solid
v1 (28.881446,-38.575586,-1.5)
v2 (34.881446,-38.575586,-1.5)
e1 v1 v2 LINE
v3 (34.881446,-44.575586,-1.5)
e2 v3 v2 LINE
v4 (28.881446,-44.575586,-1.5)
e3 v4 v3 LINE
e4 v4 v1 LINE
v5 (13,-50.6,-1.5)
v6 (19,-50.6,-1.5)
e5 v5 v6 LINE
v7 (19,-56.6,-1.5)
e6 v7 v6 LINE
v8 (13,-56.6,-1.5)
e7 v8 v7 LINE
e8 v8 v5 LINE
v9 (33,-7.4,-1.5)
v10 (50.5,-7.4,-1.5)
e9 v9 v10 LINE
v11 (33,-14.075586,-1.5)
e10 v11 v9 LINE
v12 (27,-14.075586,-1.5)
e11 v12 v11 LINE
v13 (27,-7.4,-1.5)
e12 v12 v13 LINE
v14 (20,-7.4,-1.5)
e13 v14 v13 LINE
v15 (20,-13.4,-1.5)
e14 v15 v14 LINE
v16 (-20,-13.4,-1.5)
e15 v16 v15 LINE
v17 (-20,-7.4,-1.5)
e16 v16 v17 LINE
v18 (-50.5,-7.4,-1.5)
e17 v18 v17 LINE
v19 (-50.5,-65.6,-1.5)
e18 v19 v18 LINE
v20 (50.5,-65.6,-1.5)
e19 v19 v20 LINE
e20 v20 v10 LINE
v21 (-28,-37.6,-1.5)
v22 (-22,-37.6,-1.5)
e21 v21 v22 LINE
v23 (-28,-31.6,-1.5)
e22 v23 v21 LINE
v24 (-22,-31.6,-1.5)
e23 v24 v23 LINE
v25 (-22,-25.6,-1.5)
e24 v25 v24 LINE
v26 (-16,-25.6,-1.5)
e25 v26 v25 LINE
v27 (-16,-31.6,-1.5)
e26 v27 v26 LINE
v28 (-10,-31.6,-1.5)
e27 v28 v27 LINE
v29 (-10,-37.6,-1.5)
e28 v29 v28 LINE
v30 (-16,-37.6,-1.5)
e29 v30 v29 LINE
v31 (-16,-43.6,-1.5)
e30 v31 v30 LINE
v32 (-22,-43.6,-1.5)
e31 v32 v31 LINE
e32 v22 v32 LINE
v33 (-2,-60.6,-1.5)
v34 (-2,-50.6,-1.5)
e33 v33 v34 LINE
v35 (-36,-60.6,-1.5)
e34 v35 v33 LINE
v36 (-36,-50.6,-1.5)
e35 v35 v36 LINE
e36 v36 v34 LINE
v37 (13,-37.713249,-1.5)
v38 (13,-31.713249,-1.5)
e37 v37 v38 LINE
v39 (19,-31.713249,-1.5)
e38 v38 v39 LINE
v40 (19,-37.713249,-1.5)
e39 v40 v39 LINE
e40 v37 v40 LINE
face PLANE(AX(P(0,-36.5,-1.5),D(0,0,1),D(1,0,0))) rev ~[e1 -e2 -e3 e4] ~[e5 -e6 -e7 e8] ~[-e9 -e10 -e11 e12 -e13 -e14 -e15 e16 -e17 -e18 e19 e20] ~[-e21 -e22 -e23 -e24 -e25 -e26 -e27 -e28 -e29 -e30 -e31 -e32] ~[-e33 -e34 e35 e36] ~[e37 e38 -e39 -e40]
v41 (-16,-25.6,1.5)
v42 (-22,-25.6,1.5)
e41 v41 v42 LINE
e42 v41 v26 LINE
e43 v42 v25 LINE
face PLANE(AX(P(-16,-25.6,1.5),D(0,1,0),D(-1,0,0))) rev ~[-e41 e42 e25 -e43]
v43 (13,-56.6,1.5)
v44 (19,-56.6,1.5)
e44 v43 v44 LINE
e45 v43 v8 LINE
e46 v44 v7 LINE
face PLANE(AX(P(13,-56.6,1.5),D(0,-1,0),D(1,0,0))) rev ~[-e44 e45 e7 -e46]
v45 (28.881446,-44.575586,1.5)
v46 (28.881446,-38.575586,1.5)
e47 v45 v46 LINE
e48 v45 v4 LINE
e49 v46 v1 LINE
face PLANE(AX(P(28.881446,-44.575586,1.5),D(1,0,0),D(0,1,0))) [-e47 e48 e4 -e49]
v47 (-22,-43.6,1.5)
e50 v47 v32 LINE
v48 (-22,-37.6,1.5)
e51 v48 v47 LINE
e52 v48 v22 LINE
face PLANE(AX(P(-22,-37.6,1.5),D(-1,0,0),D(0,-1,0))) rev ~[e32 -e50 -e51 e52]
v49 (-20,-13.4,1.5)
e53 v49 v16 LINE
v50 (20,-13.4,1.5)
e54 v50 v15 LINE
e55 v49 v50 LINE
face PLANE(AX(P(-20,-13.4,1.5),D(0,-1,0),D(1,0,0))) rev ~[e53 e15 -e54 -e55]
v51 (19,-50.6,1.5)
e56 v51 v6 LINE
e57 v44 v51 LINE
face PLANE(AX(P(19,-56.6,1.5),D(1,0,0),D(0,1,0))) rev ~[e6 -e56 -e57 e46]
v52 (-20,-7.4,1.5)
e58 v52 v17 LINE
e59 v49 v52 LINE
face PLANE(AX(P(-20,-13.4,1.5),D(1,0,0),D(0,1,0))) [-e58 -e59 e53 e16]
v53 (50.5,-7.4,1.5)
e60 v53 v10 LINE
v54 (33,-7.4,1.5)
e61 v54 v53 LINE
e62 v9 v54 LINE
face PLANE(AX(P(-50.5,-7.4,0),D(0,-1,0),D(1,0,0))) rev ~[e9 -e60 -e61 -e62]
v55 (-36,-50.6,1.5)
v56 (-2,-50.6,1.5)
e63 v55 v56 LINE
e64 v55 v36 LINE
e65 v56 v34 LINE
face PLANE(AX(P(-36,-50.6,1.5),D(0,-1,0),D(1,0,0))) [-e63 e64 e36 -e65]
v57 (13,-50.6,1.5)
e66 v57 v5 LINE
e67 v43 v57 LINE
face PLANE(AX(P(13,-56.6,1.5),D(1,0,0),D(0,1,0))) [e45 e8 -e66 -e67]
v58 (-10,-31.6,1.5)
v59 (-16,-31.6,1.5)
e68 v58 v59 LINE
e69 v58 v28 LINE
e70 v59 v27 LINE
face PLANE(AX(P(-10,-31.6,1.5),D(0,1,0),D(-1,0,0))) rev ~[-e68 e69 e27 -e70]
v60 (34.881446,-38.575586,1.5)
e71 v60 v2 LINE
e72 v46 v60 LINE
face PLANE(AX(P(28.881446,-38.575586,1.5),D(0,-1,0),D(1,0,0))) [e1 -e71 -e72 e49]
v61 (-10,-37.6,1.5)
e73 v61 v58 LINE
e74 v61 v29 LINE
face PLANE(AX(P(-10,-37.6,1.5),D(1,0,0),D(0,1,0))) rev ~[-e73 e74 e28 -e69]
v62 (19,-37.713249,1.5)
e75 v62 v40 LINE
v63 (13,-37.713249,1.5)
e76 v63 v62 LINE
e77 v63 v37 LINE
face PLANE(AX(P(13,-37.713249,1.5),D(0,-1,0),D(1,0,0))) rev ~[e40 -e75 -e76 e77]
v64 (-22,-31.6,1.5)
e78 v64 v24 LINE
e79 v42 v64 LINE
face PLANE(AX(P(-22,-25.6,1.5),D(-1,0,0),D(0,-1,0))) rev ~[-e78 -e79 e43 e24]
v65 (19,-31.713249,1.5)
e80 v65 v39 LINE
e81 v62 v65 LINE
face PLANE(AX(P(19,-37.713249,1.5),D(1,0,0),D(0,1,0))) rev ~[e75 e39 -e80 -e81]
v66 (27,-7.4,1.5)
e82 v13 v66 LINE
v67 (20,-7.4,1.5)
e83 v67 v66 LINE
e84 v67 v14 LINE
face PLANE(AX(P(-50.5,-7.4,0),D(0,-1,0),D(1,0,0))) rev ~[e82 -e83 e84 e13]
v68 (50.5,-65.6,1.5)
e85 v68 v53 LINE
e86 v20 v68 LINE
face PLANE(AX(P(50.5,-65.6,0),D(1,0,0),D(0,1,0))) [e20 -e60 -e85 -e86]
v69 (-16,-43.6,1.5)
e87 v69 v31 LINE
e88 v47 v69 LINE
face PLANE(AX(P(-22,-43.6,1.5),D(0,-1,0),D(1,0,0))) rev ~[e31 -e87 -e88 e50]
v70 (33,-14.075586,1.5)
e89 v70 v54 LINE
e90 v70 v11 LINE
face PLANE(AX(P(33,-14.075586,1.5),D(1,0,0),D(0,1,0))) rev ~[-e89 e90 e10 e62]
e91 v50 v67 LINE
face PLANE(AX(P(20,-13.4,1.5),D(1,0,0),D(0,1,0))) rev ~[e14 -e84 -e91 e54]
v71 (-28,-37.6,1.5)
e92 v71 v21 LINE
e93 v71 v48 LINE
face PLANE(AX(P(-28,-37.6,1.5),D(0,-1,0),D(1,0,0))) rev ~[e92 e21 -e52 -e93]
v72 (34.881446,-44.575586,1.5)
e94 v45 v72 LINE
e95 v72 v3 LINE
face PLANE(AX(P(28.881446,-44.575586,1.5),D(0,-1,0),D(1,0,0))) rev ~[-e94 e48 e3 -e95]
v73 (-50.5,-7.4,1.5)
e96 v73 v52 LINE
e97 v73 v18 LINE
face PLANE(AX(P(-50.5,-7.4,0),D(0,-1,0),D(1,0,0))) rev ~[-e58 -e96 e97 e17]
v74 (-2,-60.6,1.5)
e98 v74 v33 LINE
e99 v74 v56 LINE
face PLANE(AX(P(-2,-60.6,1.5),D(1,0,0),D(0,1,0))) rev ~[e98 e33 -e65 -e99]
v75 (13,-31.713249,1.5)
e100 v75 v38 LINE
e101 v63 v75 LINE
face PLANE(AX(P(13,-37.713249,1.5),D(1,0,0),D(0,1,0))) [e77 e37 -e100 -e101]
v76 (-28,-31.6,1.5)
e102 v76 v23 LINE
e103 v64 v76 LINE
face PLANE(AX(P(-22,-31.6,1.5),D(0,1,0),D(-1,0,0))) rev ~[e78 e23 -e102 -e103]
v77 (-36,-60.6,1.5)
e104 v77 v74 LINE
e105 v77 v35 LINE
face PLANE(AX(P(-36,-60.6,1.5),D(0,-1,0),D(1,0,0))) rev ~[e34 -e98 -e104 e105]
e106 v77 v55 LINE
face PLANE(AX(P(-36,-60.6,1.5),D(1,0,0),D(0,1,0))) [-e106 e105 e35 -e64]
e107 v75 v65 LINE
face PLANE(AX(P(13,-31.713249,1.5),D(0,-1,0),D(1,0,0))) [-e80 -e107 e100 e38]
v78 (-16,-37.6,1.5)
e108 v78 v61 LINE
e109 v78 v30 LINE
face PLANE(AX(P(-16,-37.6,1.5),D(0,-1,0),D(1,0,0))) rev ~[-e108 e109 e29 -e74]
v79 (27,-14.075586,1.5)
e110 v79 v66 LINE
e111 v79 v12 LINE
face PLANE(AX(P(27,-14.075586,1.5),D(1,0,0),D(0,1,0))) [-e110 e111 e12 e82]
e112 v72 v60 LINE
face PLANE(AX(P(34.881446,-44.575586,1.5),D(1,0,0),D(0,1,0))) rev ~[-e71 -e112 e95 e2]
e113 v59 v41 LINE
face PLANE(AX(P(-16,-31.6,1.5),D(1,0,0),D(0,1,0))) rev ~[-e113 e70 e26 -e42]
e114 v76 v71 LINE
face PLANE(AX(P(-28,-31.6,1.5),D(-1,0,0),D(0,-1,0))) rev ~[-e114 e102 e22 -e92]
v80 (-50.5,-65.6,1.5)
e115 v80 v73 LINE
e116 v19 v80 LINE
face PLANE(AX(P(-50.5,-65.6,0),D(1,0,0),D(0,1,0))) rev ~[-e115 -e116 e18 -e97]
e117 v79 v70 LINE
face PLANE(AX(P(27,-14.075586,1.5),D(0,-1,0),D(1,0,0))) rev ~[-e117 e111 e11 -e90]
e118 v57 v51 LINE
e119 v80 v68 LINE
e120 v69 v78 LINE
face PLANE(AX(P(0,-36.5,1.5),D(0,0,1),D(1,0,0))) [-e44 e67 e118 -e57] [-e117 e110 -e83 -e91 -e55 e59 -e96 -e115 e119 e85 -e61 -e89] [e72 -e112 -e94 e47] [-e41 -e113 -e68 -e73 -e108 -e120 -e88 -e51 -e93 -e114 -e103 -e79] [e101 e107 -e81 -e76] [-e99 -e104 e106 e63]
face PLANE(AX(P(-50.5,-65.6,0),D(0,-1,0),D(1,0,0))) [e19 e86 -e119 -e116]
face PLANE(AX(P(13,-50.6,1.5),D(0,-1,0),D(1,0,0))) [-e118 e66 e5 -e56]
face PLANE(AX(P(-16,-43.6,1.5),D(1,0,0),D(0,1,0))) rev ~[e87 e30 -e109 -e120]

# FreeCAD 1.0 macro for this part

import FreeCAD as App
import Part
import Sketcher
Q = App.Units.Quantity

doc = App.newDocument("Part")
body = doc.addObject("PartDesign::Body", "Body")

sketch1 = body.newObject("Sketcher::SketchObject", "Sketch")
sketch1.AttachmentSupport = (doc.getObject("XY_Plane"), [""])
sketch1.MapMode = "FlatFace"
sketch1.addGeometry([
    Part.LineSegment(App.Vector(-50, -7, 0), App.Vector(-50, -66, 0)),
    Part.LineSegment(App.Vector(-50, -66, 0), App.Vector(50, -66, 0)),
    Part.LineSegment(App.Vector(50, -66, 0), App.Vector(50, -7, 0)),
    Part.LineSegment(App.Vector(50, -7, 0), App.Vector(-50, -7, 0)),
], False)
sketch1.addConstraint([
    Sketcher.Constraint("Coincident", 0, 2, 1, 1),
    Sketcher.Constraint("Coincident", 1, 2, 2, 1),
    Sketcher.Constraint("Coincident", 2, 2, 3, 1),
    Sketcher.Constraint("Coincident", 3, 2, 0, 1),
    Sketcher.Constraint("Vertical", 0),
    Sketcher.Constraint("Horizontal", 1),
    Sketcher.Constraint("Vertical", 2),
    Sketcher.Constraint("Horizontal", 3),
    Sketcher.Constraint("DistanceX", 1, 1, 1, 2, Q("101 mm")),
    Sketcher.Constraint("DistanceY", 0, 2, 0, 1, Q("58.2 mm")),
    Sketcher.Constraint("DistanceX", 0, 2, -1, 1, Q("50.5 mm")),
    Sketcher.Constraint("DistanceY", 0, 2, -1, 1, Q("65.6 mm")),
])
pad1 = body.newObject("PartDesign::Pad", "Pad")
pad1.Profile = sketch1
pad1.Length = 3
pad1.Midplane = True

sketch2 = body.newObject("Sketcher::SketchObject", "Sketch001")
sketch2.AttachmentSupport = (doc.getObject("XY_Plane"), [""])
sketch2.MapMode = "FlatFace"
sketch2.AttachmentOffset = App.Placement(App.Vector(0, 0, 1.5), App.Rotation())
sketch2.addGeometry([
    Part.LineSegment(App.Vector(13, -32, 0), App.Vector(13, -38, 0)),
    Part.LineSegment(App.Vector(13, -38, 0), App.Vector(19, -38, 0)),
    Part.LineSegment(App.Vector(19, -38, 0), App.Vector(19, -32, 0)),
    Part.LineSegment(App.Vector(19, -32, 0), App.Vector(13, -32, 0)),
    Part.LineSegment(App.Vector(29, -39, 0), App.Vector(29, -45, 0)),
    Part.LineSegment(App.Vector(29, -45, 0), App.Vector(35, -45, 0)),
    Part.LineSegment(App.Vector(35, -45, 0), App.Vector(35, -39, 0)),
    Part.LineSegment(App.Vector(35, -39, 0), App.Vector(29, -39, 0)),
    Part.LineSegment(App.Vector(-20, -7, 0), App.Vector(-20, -13, 0)),
    Part.LineSegment(App.Vector(-20, -13, 0), App.Vector(20, -13, 0)),
    Part.LineSegment(App.Vector(20, -13, 0), App.Vector(20, -7, 0)),
    Part.LineSegment(App.Vector(20, -7, 0), App.Vector(-20, -7, 0)),
    Part.LineSegment(App.Vector(13, -51, 0), App.Vector(13, -57, 0)),
    Part.LineSegment(App.Vector(13, -57, 0), App.Vector(19, -57, 0)),
    Part.LineSegment(App.Vector(19, -57, 0), App.Vector(19, -51, 0)),
    Part.LineSegment(App.Vector(19, -51, 0), App.Vector(13, -51, 0)),
    Part.LineSegment(App.Vector(-22, -44, 0), App.Vector(-16, -44, 0)),
    Part.LineSegment(App.Vector(-16, -44, 0), App.Vector(-16, -38, 0)),
    Part.LineSegment(App.Vector(-16, -38, 0), App.Vector(-10, -38, 0)),
    Part.LineSegment(App.Vector(-10, -38, 0), App.Vector(-10, -32, 0)),
    Part.LineSegment(App.Vector(-10, -32, 0), App.Vector(-16, -32, 0)),
    Part.LineSegment(App.Vector(-16, -32, 0), App.Vector(-16, -26, 0)),
    Part.LineSegment(App.Vector(-16, -26, 0), App.Vector(-22, -26, 0)),
    Part.LineSegment(App.Vector(-22, -26, 0), App.Vector(-22, -32, 0)),
    Part.LineSegment(App.Vector(-22, -32, 0), App.Vector(-28, -32, 0)),
    Part.LineSegment(App.Vector(-28, -32, 0), App.Vector(-28, -38, 0)),
    Part.LineSegment(App.Vector(-28, -38, 0), App.Vector(-22, -38, 0)),
    Part.LineSegment(App.Vector(-22, -38, 0), App.Vector(-22, -44, 0)),
    Part.LineSegment(App.Vector(27, -6, 0), App.Vector(27, -14, 0)),
    Part.LineSegment(App.Vector(27, -14, 0), App.Vector(33, -14, 0)),
    Part.LineSegment(App.Vector(33, -14, 0), App.Vector(33, -6, 0)),
    Part.LineSegment(App.Vector(33, -6, 0), App.Vector(27, -6, 0)),
    Part.LineSegment(App.Vector(-36, -51, 0), App.Vector(-36, -61, 0)),
    Part.LineSegment(App.Vector(-36, -61, 0), App.Vector(-2, -61, 0)),
    Part.LineSegment(App.Vector(-2, -61, 0), App.Vector(-2, -51, 0)),
    Part.LineSegment(App.Vector(-2, -51, 0), App.Vector(-36, -51, 0)),
], False)
sketch2.addConstraint([
    Sketcher.Constraint("Coincident", 0, 2, 1, 1),
    Sketcher.Constraint("Coincident", 1, 2, 2, 1),
    Sketcher.Constraint("Coincident", 2, 2, 3, 1),
    Sketcher.Constraint("Coincident", 3, 2, 0, 1),
    Sketcher.Constraint("Coincident", 4, 2, 5, 1),
    Sketcher.Constraint("Coincident", 5, 2, 6, 1),
    Sketcher.Constraint("Coincident", 6, 2, 7, 1),
    Sketcher.Constraint("Coincident", 7, 2, 4, 1),
    Sketcher.Constraint("Coincident", 8, 2, 9, 1),
    Sketcher.Constraint("Coincident", 9, 2, 10, 1),
    Sketcher.Constraint("Coincident", 10, 2, 11, 1),
    Sketcher.Constraint("Coincident", 11, 2, 8, 1),
    Sketcher.Constraint("Coincident", 12, 2, 13, 1),
    Sketcher.Constraint("Coincident", 13, 2, 14, 1),
    Sketcher.Constraint("Coincident", 14, 2, 15, 1),
    Sketcher.Constraint("Coincident", 15, 2, 12, 1),
    Sketcher.Constraint("Coincident", 16, 2, 17, 1),
    Sketcher.Constraint("Coincident", 17, 2, 18, 1),
    Sketcher.Constraint("Coincident", 18, 2, 19, 1),
    Sketcher.Constraint("Coincident", 19, 2, 20, 1),
    Sketcher.Constraint("Coincident", 20, 2, 21, 1),
    Sketcher.Constraint("Coincident", 21, 2, 22, 1),
    Sketcher.Constraint("Coincident", 22, 2, 23, 1),
    Sketcher.Constraint("Coincident", 23, 2, 24, 1),
    Sketcher.Constraint("Coincident", 24, 2, 25, 1),
    Sketcher.Constraint("Coincident", 25, 2, 26, 1),
    Sketcher.Constraint("Coincident", 26, 2, 27, 1),
    Sketcher.Constraint("Coincident", 27, 2, 16, 1),
    Sketcher.Constraint("Coincident", 28, 2, 29, 1),
    Sketcher.Constraint("Coincident", 29, 2, 30, 1),
    Sketcher.Constraint("Coincident", 30, 2, 31, 1),
    Sketcher.Constraint("Coincident", 31, 2, 28, 1),
    Sketcher.Constraint("Coincident", 32, 2, 33, 1),
    Sketcher.Constraint("Coincident", 33, 2, 34, 1),
    Sketcher.Constraint("Coincident", 34, 2, 35, 1),
    Sketcher.Constraint("Coincident", 35, 2, 32, 1),
    Sketcher.Constraint("Vertical", 0),
    Sketcher.Constraint("Horizontal", 1),
    Sketcher.Constraint("Vertical", 2),
    Sketcher.Constraint("Horizontal", 3),
    Sketcher.Constraint("Vertical", 4),
    Sketcher.Constraint("Horizontal", 5),
    Sketcher.Constraint("Vertical", 6),
    Sketcher.Constraint("Horizontal", 7),
    Sketcher.Constraint("Vertical", 8),
    Sketcher.Constraint("Horizontal", 9),
    Sketcher.Constraint("Vertical", 10),
    Sketcher.Constraint("Horizontal", 11),
    Sketcher.Constraint("Vertical", 12),
    Sketcher.Constraint("Horizontal", 13),
    Sketcher.Constraint("Vertical", 14),
    Sketcher.Constraint("Horizontal", 15),
    Sketcher.Constraint("Horizontal", 16),
    Sketcher.Constraint("Vertical", 17),
    Sketcher.Constraint("Horizontal", 18),
    Sketcher.Constraint("Vertical", 19),
    Sketcher.Constraint("Horizontal", 20),
    Sketcher.Constraint("Vertical", 21),
    Sketcher.Constraint("Horizontal", 22),
    Sketcher.Constraint("Vertical", 23),
    Sketcher.Constraint("Horizontal", 24),
    Sketcher.Constraint("Vertical", 25),
    Sketcher.Constraint("Horizontal", 26),
    Sketcher.Constraint("Vertical", 27),
    Sketcher.Constraint("Vertical", 28),
    Sketcher.Constraint("Horizontal", 29),
    Sketcher.Constraint("Vertical", 30),
    Sketcher.Constraint("Horizontal", 31),
    Sketcher.Constraint("Vertical", 32),
    Sketcher.Constraint("Horizontal", 33),
    Sketcher.Constraint("Vertical", 34),
    Sketcher.Constraint("Horizontal", 35),
    Sketcher.Constraint("Horizontal", 20, 2, 23, 2),
    Sketcher.Constraint("Horizontal", 18, 2, 25, 2),
    Sketcher.Constraint("Horizontal", 15, 2, 34, 2),
    Sketcher.Constraint("Vertical", 3, 2, 12, 2),
    Sketcher.Constraint("Vertical", 2, 2, 13, 2),
    Sketcher.Constraint("Vertical", 17, 2, 20, 2),
    Sketcher.Constraint("Vertical", 23, 2, 26, 2),
    Sketcher.Constraint("Equal", 3, 5),
    Sketcher.Constraint("Equal", 15, 16),
    Sketcher.Constraint("Equal", 16, 18),
    Sketcher.Constraint("Equal", 22, 24),
    Sketcher.Constraint("Equal", 26, 29),
    Sketcher.Constraint("Equal", 31, 0),
    Sketcher.Constraint("Equal", 2, 4),
    Sketcher.Constraint("Equal", 6, 8),
    Sketcher.Constraint("Equal", 10, 12),
    Sketcher.Constraint("Equal", 14, 17),
    Sketcher.Constraint("Equal", 17, 19),
    Sketcher.Constraint("Equal", 19, 21),
    Sketcher.Constraint("DistanceX", 1, 1, 1, 2, Q("6 mm")),
    Sketcher.Constraint("DistanceX", 9, 1, 9, 2, Q("40 mm")),
    Sketcher.Constraint("DistanceX", 33, 1, 33, 2, Q("34 mm")),
    Sketcher.Constraint("DistanceY", 28, 2, 28, 1, Q("8 mm")),
    Sketcher.Constraint("DistanceY", 32, 2, 32, 1, Q("10 mm")),
    Sketcher.Constraint("DistanceX", -1, 1, 0, 2, Q("13 mm")),
    Sketcher.Constraint("DistanceX", 8, 2, -1, 1, Q("20 mm")),
    Sketcher.Constraint("DistanceX", 16, 2, -1, 1, Q("16 mm")),
    Sketcher.Constraint("DistanceX", -1, 1, 28, 2, Q("27 mm")),
    Sketcher.Constraint("DistanceX", 32, 2, -1, 1, Q("36 mm")),
    Sketcher.Constraint("DistanceY", 15, 2, 16, 2, Q("7 mm")),
    Sketcher.Constraint("DistanceY", 8, 2, -1, 1, Q("13.4 mm")),
    Sketcher.Constraint("DistanceY", 12, 2, -1, 1, Q("56.6 mm")),
    Sketcher.Constraint("DistanceY", 7, 2, 28, 2, Q("24.5 mm")),
    Sketcher.Constraint("DistanceY", 0, 2, -1, 1, Q("37.713249 mm")),
    Sketcher.Constraint("DistanceX", -1, 1, 4, 2, Q("28.881446 mm")),
    Sketcher.Constraint("DistanceY", 4, 2, -1, 1, Q("44.575586 mm")),
])
pocket1 = body.newObject("PartDesign::Pocket", "Pocket")
pocket1.Profile = sketch2
pocket1.Type = "ThroughAll"

doc.recompute()
